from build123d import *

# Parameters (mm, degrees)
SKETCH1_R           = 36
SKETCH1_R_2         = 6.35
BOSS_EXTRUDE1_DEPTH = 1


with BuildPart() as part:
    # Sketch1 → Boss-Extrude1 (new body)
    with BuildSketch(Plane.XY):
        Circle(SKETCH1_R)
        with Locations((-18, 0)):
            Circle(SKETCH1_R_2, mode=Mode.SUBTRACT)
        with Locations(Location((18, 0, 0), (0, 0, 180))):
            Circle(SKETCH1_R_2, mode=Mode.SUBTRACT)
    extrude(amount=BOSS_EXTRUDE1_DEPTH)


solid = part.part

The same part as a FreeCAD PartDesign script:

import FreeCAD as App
import Part
import Sketcher
from FreeCAD import Vector
Q = App.Units.Quantity

doc = App.newDocument("Part")
body = doc.addObject("PartDesign::Body", "Body")

sketch1 = doc.addObject("Sketcher::SketchObject", "Sketch")
body.addObject(sketch1)
sketch1.AttachmentSupport = (doc.XY_Plane, [""])
sketch1.MapMode = "FlatFace"
sketch1.addGeometry(Part.Circle(Vector(0, 0, 0), Vector(0, 0, 1), 36), False)
sketch1.addGeometry(Part.Circle(Vector(-18, 0, 0), Vector(0, 0, 1), 6.35), False)
sketch1.addGeometry(Part.Circle(Vector(18, 0, 0), Vector(0, 0, 1), 6.35), False)
sketch1.addConstraint(Sketcher.Constraint("Coincident", 0, 3, -1, 1))
sketch1.addConstraint(Sketcher.Constraint("Equal", 1, 2))
sketch1.addConstraint(Sketcher.Constraint("Symmetric", 1, 3, 2, 3, -1, 1))
sketch1.addConstraint(Sketcher.Constraint("PointOnObject", 1, 3, -1))
sketch1.addConstraint(Sketcher.Constraint("Diameter", 0, Q("72 mm")))
sketch1.addConstraint(Sketcher.Constraint("Diameter", 1, Q("12.7 mm")))
sketch1.addConstraint(Sketcher.Constraint("DistanceX", 1, 3, -1, 1, Q("18 mm")))
pad1 = doc.addObject("PartDesign::Pad", "Pad")
body.addObject(pad1)
pad1.Profile = sketch1
pad1.Length = 1

doc.recompute()
